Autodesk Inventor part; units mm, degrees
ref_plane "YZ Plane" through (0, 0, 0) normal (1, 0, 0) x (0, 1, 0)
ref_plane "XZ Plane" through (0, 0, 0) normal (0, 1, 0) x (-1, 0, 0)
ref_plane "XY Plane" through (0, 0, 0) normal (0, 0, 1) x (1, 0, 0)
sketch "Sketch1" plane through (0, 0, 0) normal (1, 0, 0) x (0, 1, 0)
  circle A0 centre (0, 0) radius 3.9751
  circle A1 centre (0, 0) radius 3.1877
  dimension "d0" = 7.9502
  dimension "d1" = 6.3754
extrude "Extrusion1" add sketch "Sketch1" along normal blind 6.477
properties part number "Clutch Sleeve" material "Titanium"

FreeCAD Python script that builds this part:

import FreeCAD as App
import Part
import Sketcher
Q = App.Units.Quantity

doc = App.newDocument("Part")
params = doc.addObject("Spreadsheet::Sheet", "Params")
for row, (alias, value) in enumerate([
    ("sketch1_diameter", "0.313 in"),
    ("sketch1_diameter2", "0.251 in"),
    ("pad1_length", "0.255 in"),
], start=1):
    params.set(f"A{row}", alias)
    params.set(f"B{row}", "=" + value)
    params.setAlias(f"B{row}", alias)

body = doc.addObject("PartDesign::Body", "Body")

# Sketch on YZ plane
sketch1 = body.newObject("Sketcher::SketchObject", "Sketch")
sketch1.AttachmentSupport = (doc.getObject("YZ_Plane"), [""])
sketch1.MapMode = "FlatFace"
sketch1.addGeometry(Part.Circle(App.Vector(0, 0, 0), App.Vector(0, 0, 1), 4), False)
sketch1.addGeometry(Part.Circle(App.Vector(0, 0, 0), App.Vector(0, 0, 1), 3.2), False)
sketch1.addConstraint(Sketcher.Constraint("Coincident", 0, 3, -1, 1))
sketch1.addConstraint(Sketcher.Constraint("Coincident", 1, 3, -1, 1))
sketch1.addConstraint(Sketcher.Constraint("Diameter", 0, Q("0.313 in")))
sketch1.addConstraint(Sketcher.Constraint("Diameter", 1, Q("0.251 in")))
sketch1.setExpression("Constraints[2]", "Params.sketch1_diameter")
sketch1.setExpression("Constraints[3]", "Params.sketch1_diameter2")
pad1 = body.newObject("PartDesign::Pad", "Pad")
pad1.Profile = sketch1
pad1.setExpression("Length", "Params.pad1_length")

doc.recompute()
